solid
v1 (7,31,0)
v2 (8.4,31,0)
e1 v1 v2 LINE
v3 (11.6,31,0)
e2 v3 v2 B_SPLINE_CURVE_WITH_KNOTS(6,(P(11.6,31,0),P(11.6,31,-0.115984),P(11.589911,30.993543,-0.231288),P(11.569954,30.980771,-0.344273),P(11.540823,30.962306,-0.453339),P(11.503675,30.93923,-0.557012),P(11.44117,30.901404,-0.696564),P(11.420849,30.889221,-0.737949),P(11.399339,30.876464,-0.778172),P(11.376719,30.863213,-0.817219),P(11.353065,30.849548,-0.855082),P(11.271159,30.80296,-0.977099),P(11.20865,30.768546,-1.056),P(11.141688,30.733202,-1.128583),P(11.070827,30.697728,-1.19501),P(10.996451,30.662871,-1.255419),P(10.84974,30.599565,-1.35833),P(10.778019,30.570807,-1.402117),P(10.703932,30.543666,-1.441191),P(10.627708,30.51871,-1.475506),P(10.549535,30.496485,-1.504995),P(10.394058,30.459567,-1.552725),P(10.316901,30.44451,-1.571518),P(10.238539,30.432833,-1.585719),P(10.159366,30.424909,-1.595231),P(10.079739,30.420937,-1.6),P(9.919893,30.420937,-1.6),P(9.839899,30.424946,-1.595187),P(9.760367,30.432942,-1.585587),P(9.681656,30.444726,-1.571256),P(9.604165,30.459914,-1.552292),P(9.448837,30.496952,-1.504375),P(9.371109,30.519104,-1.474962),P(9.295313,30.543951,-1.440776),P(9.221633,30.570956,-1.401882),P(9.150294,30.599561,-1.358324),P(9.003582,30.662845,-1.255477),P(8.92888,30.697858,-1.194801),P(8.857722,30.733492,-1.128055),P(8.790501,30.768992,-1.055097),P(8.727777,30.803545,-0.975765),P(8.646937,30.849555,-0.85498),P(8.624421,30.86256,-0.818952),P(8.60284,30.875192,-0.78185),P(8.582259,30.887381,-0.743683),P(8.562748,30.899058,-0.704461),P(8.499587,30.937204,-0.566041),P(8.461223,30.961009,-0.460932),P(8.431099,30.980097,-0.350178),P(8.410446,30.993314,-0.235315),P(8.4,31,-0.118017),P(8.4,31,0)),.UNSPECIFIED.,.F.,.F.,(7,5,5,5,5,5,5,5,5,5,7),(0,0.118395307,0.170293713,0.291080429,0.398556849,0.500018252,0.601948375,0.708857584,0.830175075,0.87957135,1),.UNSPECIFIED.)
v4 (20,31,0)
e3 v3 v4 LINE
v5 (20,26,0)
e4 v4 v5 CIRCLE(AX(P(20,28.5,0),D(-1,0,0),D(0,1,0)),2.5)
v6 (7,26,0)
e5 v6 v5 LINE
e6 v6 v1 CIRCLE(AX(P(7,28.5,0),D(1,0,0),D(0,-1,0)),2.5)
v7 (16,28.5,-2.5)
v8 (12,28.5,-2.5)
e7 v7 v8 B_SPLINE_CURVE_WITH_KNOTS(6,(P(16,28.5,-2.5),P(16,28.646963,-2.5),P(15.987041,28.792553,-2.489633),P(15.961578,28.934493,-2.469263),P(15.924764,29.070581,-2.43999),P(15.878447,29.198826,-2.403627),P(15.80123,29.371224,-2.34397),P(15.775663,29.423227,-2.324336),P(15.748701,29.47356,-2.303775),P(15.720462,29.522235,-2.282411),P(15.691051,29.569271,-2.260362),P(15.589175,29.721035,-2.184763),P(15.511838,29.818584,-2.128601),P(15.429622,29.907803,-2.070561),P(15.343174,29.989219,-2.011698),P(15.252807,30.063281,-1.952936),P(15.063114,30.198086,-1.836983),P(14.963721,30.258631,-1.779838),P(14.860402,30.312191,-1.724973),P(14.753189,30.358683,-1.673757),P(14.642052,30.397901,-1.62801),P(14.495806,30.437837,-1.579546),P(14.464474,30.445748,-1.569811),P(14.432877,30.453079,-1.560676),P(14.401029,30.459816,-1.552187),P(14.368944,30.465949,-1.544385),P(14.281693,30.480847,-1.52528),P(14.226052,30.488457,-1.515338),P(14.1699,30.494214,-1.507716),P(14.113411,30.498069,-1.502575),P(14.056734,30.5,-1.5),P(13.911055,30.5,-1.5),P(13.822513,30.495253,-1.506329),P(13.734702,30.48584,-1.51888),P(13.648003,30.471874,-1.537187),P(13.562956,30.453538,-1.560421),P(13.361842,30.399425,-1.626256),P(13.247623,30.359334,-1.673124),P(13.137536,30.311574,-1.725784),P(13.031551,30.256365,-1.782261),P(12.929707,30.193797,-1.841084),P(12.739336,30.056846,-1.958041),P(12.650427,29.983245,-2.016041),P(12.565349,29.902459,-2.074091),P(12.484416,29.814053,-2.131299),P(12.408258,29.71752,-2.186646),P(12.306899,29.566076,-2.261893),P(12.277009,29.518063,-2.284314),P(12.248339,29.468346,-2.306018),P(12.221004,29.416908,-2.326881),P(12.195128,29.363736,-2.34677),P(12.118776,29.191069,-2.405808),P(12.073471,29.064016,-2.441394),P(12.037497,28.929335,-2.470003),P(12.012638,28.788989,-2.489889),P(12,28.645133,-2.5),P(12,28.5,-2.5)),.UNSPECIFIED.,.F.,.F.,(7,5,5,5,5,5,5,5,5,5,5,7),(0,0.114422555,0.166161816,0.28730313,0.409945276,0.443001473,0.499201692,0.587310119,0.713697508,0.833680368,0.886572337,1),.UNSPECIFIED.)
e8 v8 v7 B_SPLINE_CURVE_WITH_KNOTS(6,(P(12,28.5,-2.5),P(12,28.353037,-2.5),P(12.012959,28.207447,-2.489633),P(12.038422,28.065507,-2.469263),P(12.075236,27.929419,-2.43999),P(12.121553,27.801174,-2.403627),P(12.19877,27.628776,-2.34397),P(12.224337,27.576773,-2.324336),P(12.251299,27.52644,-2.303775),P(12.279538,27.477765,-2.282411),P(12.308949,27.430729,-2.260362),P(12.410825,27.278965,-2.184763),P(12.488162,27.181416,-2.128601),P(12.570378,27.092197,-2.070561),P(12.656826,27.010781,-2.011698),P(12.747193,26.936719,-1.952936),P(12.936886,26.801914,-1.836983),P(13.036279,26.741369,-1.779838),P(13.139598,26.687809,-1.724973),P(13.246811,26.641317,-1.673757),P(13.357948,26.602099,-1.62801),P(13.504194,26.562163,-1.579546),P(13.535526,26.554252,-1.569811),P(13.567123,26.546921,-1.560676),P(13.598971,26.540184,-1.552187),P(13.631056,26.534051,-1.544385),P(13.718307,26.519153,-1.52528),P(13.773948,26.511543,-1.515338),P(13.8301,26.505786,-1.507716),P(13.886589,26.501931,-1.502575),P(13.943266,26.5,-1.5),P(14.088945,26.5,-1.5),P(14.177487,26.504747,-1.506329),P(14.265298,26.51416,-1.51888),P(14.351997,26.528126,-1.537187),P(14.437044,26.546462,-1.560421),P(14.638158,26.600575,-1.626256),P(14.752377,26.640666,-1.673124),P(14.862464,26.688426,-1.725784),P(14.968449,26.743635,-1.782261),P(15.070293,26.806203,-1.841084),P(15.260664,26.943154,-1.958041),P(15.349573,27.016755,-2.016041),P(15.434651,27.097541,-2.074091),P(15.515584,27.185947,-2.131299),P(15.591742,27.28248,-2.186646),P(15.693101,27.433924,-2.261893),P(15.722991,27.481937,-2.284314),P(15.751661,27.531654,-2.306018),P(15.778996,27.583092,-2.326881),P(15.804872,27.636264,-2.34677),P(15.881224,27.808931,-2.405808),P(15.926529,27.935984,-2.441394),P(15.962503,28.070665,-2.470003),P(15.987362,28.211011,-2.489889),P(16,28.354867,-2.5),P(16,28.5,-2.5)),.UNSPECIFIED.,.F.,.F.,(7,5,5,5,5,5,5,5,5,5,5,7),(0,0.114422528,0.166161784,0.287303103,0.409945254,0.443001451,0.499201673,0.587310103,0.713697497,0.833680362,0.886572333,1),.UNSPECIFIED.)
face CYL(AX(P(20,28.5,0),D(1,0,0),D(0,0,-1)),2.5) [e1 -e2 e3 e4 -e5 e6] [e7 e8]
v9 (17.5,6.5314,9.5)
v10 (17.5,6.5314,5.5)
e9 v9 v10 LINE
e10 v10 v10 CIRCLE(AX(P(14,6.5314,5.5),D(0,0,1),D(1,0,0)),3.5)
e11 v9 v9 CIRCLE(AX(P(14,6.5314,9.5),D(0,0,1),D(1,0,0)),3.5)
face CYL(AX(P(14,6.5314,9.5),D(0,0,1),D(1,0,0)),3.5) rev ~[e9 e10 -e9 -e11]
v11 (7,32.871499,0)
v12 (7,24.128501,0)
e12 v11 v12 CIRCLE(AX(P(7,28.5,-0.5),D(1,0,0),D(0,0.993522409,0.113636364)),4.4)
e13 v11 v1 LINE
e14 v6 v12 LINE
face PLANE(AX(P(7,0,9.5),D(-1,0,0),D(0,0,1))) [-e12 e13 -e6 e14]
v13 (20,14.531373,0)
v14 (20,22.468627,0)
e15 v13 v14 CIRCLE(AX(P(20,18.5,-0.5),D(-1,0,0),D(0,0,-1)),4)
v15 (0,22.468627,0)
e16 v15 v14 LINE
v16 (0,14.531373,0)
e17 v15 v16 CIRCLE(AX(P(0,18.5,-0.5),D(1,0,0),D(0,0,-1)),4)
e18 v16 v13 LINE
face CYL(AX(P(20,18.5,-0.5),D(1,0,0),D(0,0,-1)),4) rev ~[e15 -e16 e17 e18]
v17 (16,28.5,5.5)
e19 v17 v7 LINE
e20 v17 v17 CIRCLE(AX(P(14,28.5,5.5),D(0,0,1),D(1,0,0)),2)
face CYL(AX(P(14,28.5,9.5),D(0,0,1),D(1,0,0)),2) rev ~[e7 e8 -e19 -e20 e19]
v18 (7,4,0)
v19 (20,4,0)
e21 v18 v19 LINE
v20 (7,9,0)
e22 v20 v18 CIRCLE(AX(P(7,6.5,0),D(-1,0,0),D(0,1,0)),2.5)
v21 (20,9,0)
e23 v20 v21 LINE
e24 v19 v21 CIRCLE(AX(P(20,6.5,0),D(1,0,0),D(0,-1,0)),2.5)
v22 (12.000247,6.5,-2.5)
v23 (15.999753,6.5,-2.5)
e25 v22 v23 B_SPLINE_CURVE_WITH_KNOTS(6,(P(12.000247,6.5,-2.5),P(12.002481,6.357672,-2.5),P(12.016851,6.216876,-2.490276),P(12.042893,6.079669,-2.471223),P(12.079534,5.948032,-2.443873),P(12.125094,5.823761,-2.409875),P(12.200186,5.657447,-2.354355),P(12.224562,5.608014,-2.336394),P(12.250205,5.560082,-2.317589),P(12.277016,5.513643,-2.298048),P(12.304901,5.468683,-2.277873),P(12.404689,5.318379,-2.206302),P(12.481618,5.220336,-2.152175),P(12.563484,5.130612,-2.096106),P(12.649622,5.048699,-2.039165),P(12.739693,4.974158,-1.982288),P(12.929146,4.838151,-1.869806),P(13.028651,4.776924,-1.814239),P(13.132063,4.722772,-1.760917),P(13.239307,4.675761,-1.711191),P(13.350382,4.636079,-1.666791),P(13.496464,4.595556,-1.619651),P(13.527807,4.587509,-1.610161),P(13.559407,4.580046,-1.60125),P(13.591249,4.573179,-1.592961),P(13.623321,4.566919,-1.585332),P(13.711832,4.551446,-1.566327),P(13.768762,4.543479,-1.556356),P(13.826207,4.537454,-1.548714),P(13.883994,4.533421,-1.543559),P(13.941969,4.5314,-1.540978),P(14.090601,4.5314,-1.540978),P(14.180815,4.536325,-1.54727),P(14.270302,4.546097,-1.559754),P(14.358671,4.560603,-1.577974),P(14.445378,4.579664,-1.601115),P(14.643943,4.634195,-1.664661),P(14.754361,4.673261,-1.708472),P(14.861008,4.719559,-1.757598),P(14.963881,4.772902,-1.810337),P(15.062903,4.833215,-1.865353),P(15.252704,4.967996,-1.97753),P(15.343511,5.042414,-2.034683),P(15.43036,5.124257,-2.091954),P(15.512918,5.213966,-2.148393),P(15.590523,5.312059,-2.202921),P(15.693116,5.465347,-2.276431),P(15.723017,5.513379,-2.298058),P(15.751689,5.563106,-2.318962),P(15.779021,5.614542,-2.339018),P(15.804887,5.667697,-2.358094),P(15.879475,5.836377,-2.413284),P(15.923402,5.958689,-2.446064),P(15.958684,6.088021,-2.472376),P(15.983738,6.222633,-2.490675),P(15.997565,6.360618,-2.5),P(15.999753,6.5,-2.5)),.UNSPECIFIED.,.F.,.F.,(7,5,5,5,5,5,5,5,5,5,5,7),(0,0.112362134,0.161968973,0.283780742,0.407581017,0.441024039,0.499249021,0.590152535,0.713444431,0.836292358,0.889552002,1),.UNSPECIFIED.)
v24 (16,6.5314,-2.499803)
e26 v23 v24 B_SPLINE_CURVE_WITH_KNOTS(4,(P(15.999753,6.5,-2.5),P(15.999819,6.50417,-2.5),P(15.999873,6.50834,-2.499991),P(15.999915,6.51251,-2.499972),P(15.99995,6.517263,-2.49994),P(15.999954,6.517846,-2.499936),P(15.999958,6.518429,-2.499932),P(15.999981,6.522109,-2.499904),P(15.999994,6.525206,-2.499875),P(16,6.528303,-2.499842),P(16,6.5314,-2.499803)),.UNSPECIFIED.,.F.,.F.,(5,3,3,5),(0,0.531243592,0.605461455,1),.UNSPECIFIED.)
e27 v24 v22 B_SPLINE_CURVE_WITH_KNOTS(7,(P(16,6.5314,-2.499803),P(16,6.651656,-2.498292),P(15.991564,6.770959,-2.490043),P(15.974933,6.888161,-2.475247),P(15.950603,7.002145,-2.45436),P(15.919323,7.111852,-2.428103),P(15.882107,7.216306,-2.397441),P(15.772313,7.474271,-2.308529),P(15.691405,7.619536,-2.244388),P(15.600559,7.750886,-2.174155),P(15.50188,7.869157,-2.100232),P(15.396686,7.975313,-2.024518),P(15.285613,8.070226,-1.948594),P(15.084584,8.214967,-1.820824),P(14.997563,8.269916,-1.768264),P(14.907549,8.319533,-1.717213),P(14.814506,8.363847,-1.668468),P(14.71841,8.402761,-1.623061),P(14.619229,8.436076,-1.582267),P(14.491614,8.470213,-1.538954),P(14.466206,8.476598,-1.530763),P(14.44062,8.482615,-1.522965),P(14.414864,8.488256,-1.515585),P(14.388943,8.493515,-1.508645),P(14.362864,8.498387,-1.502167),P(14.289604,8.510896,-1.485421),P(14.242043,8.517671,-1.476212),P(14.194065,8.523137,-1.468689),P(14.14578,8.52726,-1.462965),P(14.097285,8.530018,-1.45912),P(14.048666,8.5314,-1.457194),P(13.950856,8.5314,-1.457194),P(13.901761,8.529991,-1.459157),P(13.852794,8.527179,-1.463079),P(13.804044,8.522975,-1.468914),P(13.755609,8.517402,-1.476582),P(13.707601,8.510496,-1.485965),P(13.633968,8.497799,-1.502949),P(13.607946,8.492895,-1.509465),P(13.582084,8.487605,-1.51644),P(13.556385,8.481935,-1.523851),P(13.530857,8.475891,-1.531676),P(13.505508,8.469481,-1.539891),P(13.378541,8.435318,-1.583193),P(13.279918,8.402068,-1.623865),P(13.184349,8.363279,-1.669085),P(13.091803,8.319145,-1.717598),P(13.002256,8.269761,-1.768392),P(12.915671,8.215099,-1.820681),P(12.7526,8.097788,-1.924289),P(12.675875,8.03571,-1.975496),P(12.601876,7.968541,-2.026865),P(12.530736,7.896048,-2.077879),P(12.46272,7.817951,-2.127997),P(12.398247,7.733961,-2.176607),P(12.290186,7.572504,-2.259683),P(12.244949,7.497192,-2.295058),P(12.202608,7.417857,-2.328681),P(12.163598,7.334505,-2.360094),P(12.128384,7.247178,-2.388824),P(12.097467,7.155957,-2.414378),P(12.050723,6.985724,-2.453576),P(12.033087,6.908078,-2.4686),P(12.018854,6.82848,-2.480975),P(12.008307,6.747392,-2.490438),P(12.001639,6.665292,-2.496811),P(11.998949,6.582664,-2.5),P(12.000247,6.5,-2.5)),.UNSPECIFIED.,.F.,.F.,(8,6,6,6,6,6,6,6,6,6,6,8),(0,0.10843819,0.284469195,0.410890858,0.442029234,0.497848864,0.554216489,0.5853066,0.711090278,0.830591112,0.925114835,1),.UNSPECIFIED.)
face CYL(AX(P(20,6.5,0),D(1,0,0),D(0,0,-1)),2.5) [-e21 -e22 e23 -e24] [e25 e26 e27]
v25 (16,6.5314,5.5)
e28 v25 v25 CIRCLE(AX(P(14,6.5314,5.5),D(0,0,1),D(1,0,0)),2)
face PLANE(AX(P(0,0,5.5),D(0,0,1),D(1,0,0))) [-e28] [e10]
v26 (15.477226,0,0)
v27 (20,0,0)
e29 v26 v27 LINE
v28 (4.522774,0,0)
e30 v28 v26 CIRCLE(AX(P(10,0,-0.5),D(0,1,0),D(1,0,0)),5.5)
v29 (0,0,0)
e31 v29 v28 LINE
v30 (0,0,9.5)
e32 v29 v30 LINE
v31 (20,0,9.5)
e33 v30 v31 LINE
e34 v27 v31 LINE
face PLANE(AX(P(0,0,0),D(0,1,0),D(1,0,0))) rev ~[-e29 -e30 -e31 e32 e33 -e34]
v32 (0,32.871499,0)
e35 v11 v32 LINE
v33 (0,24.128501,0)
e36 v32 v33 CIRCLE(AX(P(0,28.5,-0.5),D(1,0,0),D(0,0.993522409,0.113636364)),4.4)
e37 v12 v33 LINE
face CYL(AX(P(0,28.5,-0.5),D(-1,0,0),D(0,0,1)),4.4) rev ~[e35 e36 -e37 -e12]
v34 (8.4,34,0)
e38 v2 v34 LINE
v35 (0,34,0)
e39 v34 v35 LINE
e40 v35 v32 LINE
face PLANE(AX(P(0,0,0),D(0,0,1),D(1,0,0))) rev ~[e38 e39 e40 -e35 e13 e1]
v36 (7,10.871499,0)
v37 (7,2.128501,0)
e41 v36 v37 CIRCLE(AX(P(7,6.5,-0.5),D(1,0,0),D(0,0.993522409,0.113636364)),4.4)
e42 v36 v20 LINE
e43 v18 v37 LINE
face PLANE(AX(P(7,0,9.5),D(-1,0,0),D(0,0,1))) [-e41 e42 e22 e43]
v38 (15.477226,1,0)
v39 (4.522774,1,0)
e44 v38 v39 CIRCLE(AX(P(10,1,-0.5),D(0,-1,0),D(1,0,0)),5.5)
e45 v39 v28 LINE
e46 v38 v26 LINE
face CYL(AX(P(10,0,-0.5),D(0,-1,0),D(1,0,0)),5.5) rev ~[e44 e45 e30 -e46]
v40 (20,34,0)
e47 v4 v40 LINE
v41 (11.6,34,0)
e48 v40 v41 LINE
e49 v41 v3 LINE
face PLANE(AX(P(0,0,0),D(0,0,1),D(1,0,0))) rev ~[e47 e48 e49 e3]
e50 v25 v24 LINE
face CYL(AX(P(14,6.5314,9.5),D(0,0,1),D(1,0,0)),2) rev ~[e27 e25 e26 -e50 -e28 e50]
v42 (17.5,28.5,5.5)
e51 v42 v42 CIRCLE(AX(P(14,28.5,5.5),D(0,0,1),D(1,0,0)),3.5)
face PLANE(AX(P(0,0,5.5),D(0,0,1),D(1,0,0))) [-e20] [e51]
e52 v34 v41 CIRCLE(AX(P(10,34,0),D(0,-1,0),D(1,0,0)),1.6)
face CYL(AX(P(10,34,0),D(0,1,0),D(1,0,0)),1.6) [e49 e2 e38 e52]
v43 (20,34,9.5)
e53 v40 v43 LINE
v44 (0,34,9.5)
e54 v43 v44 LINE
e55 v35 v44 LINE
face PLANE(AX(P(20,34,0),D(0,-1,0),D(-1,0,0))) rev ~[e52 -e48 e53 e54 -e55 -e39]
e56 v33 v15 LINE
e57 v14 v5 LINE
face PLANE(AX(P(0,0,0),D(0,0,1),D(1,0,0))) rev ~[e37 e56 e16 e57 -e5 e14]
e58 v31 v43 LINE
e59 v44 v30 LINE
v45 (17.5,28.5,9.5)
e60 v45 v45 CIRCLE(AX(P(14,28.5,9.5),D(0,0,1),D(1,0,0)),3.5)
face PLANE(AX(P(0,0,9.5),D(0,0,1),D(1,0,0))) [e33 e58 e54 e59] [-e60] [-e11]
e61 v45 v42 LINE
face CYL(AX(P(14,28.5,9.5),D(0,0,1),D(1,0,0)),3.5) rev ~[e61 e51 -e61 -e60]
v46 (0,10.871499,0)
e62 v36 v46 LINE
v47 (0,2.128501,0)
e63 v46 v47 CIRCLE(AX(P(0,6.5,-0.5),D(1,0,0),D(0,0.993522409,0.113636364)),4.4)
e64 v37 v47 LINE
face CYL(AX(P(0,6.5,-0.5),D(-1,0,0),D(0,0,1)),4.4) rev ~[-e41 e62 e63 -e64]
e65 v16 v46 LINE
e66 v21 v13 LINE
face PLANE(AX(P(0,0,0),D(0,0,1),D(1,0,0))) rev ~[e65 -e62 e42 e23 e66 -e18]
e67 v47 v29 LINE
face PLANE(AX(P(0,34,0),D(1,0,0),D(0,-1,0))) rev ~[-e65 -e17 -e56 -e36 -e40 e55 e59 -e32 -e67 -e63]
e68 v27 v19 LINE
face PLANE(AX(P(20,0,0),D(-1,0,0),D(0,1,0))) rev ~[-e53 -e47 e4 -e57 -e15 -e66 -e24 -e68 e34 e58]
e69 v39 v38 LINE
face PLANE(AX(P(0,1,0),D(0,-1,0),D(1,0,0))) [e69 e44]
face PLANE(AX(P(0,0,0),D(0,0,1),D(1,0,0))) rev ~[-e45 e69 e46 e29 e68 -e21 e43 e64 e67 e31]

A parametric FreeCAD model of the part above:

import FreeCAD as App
import Part
import Sketcher
from FreeCAD import Vector
Q = App.Units.Quantity


def add_polygon(sketch, points):
    """Adds a closed chain of lines whose ends are joined by coincident constraints."""
    first, n = sketch.GeometryCount, len(points)
    for a, b in zip(points, points[1:] + points[:1]):
        sketch.addGeometry(Part.LineSegment(App.Vector(*a, 0), App.Vector(*b, 0)), False)
    for i in range(n):
        sketch.addConstraint(Sketcher.Constraint("Coincident", first + i, 2, first + (i + 1) % n, 1))

doc = App.newDocument("Part")
body = doc.addObject("PartDesign::Body", "Body")

sketch1 = doc.addObject("Sketcher::SketchObject", "Sketch")
body.addObject(sketch1)
sketch1.AttachmentSupport = (doc.XY_Plane, [""])
sketch1.MapMode = "FlatFace"
add_polygon(sketch1, [(0, 34), (0, 0), (20, 0), (20, 34)])
sketch1.addConstraint(Sketcher.Constraint("Vertical", 0))
sketch1.addConstraint(Sketcher.Constraint("Horizontal", 1))
sketch1.addConstraint(Sketcher.Constraint("Vertical", 2))
sketch1.addConstraint(Sketcher.Constraint("Horizontal", 3))
sketch1.addConstraint(Sketcher.Constraint("Coincident", 0, 2, -1, 1))
sketch1.addConstraint(Sketcher.Constraint("DistanceX", 1, 1, 1, 2, Q("20 mm")))
sketch1.addConstraint(Sketcher.Constraint("DistanceY", 0, 2, 0, 1, Q("34 mm")))
pad1 = doc.addObject("PartDesign::Pad", "Pad")
body.addObject(pad1)
pad1.Profile = sketch1
pad1.Length = 9.5

sketch2 = doc.addObject("Sketcher::SketchObject", "Sketch001")
body.addObject(sketch2)
sketch2.AttachmentSupport = (doc.YZ_Plane, [""])
sketch2.MapMode = "FlatFace"
sketch2.AttachmentOffset = App.Placement(Vector(0, 0, 20), App.Rotation())
sketch2.addGeometry(Part.Circle(Vector(18.5, -0.5, 0), Vector(0, 0, 1), 4), False)
sketch2.addConstraint(Sketcher.Constraint("Diameter", 0, Q("8 mm")))
sketch2.addConstraint(Sketcher.Constraint("DistanceX", -1, 1, 0, 3, Q("18.5 mm")))
sketch2.addConstraint(Sketcher.Constraint("DistanceY", 0, 3, -1, 1, Q("0.5 mm")))
pocket1 = doc.addObject("PartDesign::Pocket", "Pocket")
body.addObject(pocket1)
pocket1.Profile = sketch2
pocket1.Length = 20

sketch3 = doc.addObject("Sketcher::SketchObject", "Sketch002")
body.addObject(sketch3)
sketch3.AttachmentSupport = (doc.YZ_Plane, [""])
sketch3.MapMode = "FlatFace"
sketch3.addGeometry(Part.Circle(Vector(6.5, -0.5, 0), Vector(0, 0, 1), 4.4), False)
sketch3.addGeometry(Part.Circle(Vector(28.5, -0.5, 0), Vector(0, 0, 1), 4.4), False)
sketch3.addConstraint(Sketcher.Constraint("Equal", 0, 1))
sketch3.addConstraint(Sketcher.Constraint("Horizontal", 0, 3, 1, 3))
sketch3.addConstraint(Sketcher.Constraint("Diameter", 0, Q("8.8 mm")))
sketch3.addConstraint(Sketcher.Constraint("DistanceY", 0, 3, -1, 1, Q("0.5 mm")))
sketch3.addConstraint(Sketcher.Constraint("DistanceX", 0, 3, 1, 3, Q("22 mm")))
sketch3.addConstraint(Sketcher.Constraint("DistanceX", -1, 1, 0, 3, Q("6.5 mm")))
pocket2 = doc.addObject("PartDesign::Pocket", "Pocket001")
body.addObject(pocket2)
pocket2.Profile = sketch3
pocket2.Length = 7
pocket2.Reversed = True

sketch4 = doc.addObject("Sketcher::SketchObject", "Sketch003")
body.addObject(sketch4)
sketch4.AttachmentSupport = (doc.YZ_Plane, [""])
sketch4.MapMode = "FlatFace"
sketch4.AttachmentOffset = App.Placement(Vector(0, 0, 20), App.Rotation())
sketch4.addGeometry(Part.Circle(Vector(28.5, 0, 0), Vector(0, 0, 1), 2.5), False)
sketch4.addGeometry(Part.Circle(Vector(6.5, 0, 0), Vector(0, 0, 1), 2.5), False)
sketch4.addConstraint(Sketcher.Constraint("Equal", 0, 1))
sketch4.addConstraint(Sketcher.Constraint("PointOnObject", 0, 3, -1))
sketch4.addConstraint(Sketcher.Constraint("PointOnObject", 1, 3, -1))
sketch4.addConstraint(Sketcher.Constraint("Diameter", 0, Q("5 mm")))
sketch4.addConstraint(Sketcher.Constraint("DistanceX", 1, 3, 0, 3, Q("22 mm")))
sketch4.addConstraint(Sketcher.Constraint("DistanceX", -1, 1, 0, 3, Q("28.5 mm")))
pad2 = doc.addObject("PartDesign::Pad", "Pad001")
body.addObject(pad2)
pad2.Profile = sketch4
pad2.Length = 13
pad2.Reversed = True

sketch5 = doc.addObject("Sketcher::SketchObject", "Sketch004")
body.addObject(sketch5)
sketch5.AttachmentSupport = (doc.XY_Plane, [""])
sketch5.MapMode = "FlatFace"
sketch5.AttachmentOffset = App.Placement(Vector(0, 0, 9.5), App.Rotation())
sketch5.addGeometry(Part.Circle(Vector(14, 28.5, 0), Vector(0, 0, 1), 2), False)
sketch5.addGeometry(Part.Circle(Vector(14, 6.5, 0), Vector(0, 0, 1), 2), False)
sketch5.addConstraint(Sketcher.Constraint("Equal", 0, 1))
sketch5.addConstraint(Sketcher.Constraint("Vertical", 0, 3, 1, 3))
sketch5.addConstraint(Sketcher.Constraint("Diameter", 0, Q("4 mm")))
sketch5.addConstraint(Sketcher.Constraint("DistanceX", -1, 1, 0, 3, Q("14 mm")))
sketch5.addConstraint(Sketcher.Constraint("DistanceY", -1, 1, 0, 3, Q("28.5 mm")))
sketch5.addConstraint(Sketcher.Constraint("DistanceY", -1, 1, 1, 3, Q("6.5314 mm")))
pocket3 = doc.addObject("PartDesign::Pocket", "Pocket002")
body.addObject(pocket3)
pocket3.Profile = sketch5
pocket3.Length = 12

sketch6 = doc.addObject("Sketcher::SketchObject", "Sketch005")
body.addObject(sketch6)
sketch6.AttachmentSupport = (doc.XZ_Plane, [""])
sketch6.MapMode = "FlatFace"
sketch6.AttachmentOffset = App.Placement(Vector(0, 0, -34), App.Rotation())
sketch6.addGeometry(Part.Circle(Vector(10, 0, 0), Vector(0, 0, 1), 1.6), False)
sketch6.addConstraint(Sketcher.Constraint("PointOnObject", 0, 3, -1))
sketch6.addConstraint(Sketcher.Constraint("Diameter", 0, Q("3.2 mm")))
sketch6.addConstraint(Sketcher.Constraint("DistanceX", -1, 1, 0, 3, Q("10 mm")))
pad3 = doc.addObject("PartDesign::Pad", "Pad002")
body.addObject(pad3)
pad3.Profile = sketch6
pad3.Length = 6

sketch7 = doc.addObject("Sketcher::SketchObject", "Sketch006")
body.addObject(sketch7)
sketch7.AttachmentSupport = (doc.XY_Plane, [""])
sketch7.MapMode = "FlatFace"
sketch7.AttachmentOffset = App.Placement(Vector(0, 0, 9.5), App.Rotation())
sketch7.addGeometry(Part.Circle(Vector(14, 28.5, 0), Vector(0, 0, 1), 3.5), False)
sketch7.addGeometry(Part.Circle(Vector(14, 28.5, 0), Vector(0, 0, 1), 2), False)
sketch7.addGeometry(Part.Circle(Vector(14, 6.5, 0), Vector(0, 0, 1), 3.5), False)
sketch7.addGeometry(Part.Circle(Vector(14, 6.5, 0), Vector(0, 0, 1), 2), False)
sketch7.addConstraint(Sketcher.Constraint("Coincident", 1, 3, 0, 3))
sketch7.addConstraint(Sketcher.Constraint("Coincident", 3, 3, 2, 3))
sketch7.addConstraint(Sketcher.Constraint("Equal", 0, 2))
sketch7.addConstraint(Sketcher.Constraint("Equal", 1, 3))
sketch7.addConstraint(Sketcher.Constraint("Vertical", 1, 3, 2, 3))
sketch7.addConstraint(Sketcher.Constraint("Diameter", 0, Q("7 mm")))
sketch7.addConstraint(Sketcher.Constraint("Diameter", 1, Q("4 mm")))
sketch7.addConstraint(Sketcher.Constraint("DistanceX", -1, 1, 0, 3, Q("14 mm")))
sketch7.addConstraint(Sketcher.Constraint("DistanceY", -1, 1, 0, 3, Q("28.5 mm")))
sketch7.addConstraint(Sketcher.Constraint("DistanceY", -1, 1, 2, 3, Q("6.5314 mm")))
pocket4 = doc.addObject("PartDesign::Pocket", "Pocket003")
body.addObject(pocket4)
pocket4.Profile = sketch7
pocket4.Length = 4

sketch8 = doc.addObject("Sketcher::SketchObject", "Sketch007")
body.addObject(sketch8)
sketch8.AttachmentSupport = (doc.XZ_Plane, [""])
sketch8.MapMode = "FlatFace"
sketch8.addGeometry(Part.Circle(Vector(10, 0, 0), Vector(0, 0, 1), 6), False)
sketch8.addConstraint(Sketcher.Constraint("Diameter", 0, Q("11 mm")))
sketch8.addConstraint(Sketcher.Constraint("DistanceX", -1, 1, 0, 3, Q("10 mm")))
sketch8.addConstraint(Sketcher.Constraint("DistanceY", 0, 3, -1, 1, Q("0.5 mm")))
pocket5 = doc.addObject("PartDesign::Pocket", "Pocket004")
body.addObject(pocket5)
pocket5.Profile = sketch8
pocket5.Length = 1

doc.recompute()
